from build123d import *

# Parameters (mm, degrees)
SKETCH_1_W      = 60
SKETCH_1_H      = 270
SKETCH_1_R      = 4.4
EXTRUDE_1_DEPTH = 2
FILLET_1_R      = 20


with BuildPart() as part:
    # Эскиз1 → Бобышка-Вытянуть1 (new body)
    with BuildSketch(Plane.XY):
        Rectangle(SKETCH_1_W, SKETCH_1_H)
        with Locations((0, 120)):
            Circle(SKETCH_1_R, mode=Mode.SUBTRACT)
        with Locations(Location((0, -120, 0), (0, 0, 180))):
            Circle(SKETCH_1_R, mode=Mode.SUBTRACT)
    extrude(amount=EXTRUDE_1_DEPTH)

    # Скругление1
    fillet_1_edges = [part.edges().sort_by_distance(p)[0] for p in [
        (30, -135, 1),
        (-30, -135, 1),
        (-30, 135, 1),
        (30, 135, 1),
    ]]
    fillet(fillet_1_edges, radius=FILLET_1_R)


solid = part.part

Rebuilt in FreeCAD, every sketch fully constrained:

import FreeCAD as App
import Part
import Sketcher

V = App.Vector
Q = App.Units.Quantity


def edges_at(feature, points):
    """Names of the edges that pass closest to the given points."""
    edges = feature.Shape.Edges
    near = lambda p: min(range(len(edges)), key=lambda i: edges[i].distToShape(Part.Vertex(*p))[0])
    return sorted({f"Edge{near(p) + 1}" for p in points})


def add_polygon(sketch, points):
    """Adds a closed chain of lines whose ends are joined by coincident constraints."""
    first, n = sketch.GeometryCount, len(points)
    for a, b in zip(points, points[1:] + points[:1]):
        sketch.addGeometry(Part.LineSegment(App.Vector(*a, 0), App.Vector(*b, 0)), False)
    for i in range(n):
        sketch.addConstraint(Sketcher.Constraint("Coincident", first + i, 2, first + (i + 1) % n, 1))

doc = App.newDocument("Part")
params = doc.addObject("Spreadsheet::Sheet", "Params")
for row, (alias, value) in enumerate([
    ("sketch1_diameter", "8.8 mm"),
    ("sketch1_width", "60 mm"),
    ("sketch1_height", "270 mm"),
    ("pad1_length", "2 mm"),
    ("fillet_radius", "20 mm"),
], start=1):
    params.set(f"A{row}", alias)
    params.set(f"B{row}", "=" + value)
    params.setAlias(f"B{row}", alias)

body = doc.addObject("PartDesign::Body", "Body")

# Sketch on XY plane
sketch1 = body.newObject("Sketcher::SketchObject", "Sketch")
sketch1.AttachmentSupport = (doc.getObject("XY_Plane"), [""])
sketch1.MapMode = "FlatFace"
add_polygon(sketch1, [(-30, 135), (-30, -135), (30, -135), (30, 135)])  # lines 0-3
sketch1.addGeometry(Part.Circle(V(0, -120, 0), V(0, 0, 1), 4.4), False)  # 4
sketch1.addGeometry(Part.Circle(V(0, 120, 0), V(0, 0, 1), 4.4), False)  # 5
sketch1.addConstraint([
    Sketcher.Constraint("Vertical", 0),
    Sketcher.Constraint("Horizontal", 1),
    Sketcher.Constraint("Vertical", 2),
    Sketcher.Constraint("Horizontal", 3),
    Sketcher.Constraint("Equal", 4, 5),
    Sketcher.Constraint("Symmetric", 4, 3, 5, 3, -1, 1),
    Sketcher.Constraint("Symmetric", 0, 2, 2, 2, -1, 1),
    Sketcher.Constraint("PointOnObject", 4, 3, -2),
    Sketcher.Constraint("Diameter", 4, Q("8.8 mm")),
    Sketcher.Constraint("DistanceX", 1, 1, 1, 2, Q("60 mm")),
    Sketcher.Constraint("DistanceY", 0, 2, 0, 1, Q("270 mm")),
    Sketcher.Constraint("DistanceY", 4, 3, -1, 1, Q("120 mm")),
])
sketch1.setExpression("Constraints[12]", "Params.sketch1_diameter")
sketch1.setExpression("Constraints[13]", "Params.sketch1_width")
sketch1.setExpression("Constraints[14]", "Params.sketch1_height")
pad1 = body.newObject("PartDesign::Pad", "Pad")
pad1.Profile = sketch1
pad1.setExpression("Length", "Params.pad1_length")
doc.recompute()

fillet = body.newObject("PartDesign::Fillet", "Fillet")
fillet.Base = (pad1, edges_at(pad1, [
    (30, -135, 1),
    (-30, -135, 1),
    (-30, 135, 1),
    (30, 135, 1),
]))
fillet.setExpression("Radius", "Params.fillet_radius")

doc.recompute()
